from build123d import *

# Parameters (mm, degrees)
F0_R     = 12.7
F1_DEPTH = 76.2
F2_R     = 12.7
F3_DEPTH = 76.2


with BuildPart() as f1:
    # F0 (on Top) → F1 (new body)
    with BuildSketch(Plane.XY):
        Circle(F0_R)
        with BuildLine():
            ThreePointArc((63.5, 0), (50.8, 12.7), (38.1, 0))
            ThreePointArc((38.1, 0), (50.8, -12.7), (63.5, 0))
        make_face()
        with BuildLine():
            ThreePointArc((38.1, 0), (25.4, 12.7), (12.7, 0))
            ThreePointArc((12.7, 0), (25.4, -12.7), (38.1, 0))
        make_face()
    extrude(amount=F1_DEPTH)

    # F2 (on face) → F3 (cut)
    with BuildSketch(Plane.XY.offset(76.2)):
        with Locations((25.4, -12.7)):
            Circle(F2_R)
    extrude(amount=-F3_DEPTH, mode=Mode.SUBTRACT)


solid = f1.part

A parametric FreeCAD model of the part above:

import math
import FreeCAD as App
import Part
import Sketcher

V = App.Vector
Q = App.Units.Quantity

doc = App.newDocument("Part")
params = doc.addObject("Spreadsheet::Sheet", "Params")
for row, (alias, value) in enumerate([
    ("sketch1_diameter", "1 in"),
    ("pad1_length", "3 in"),
    ("sketch2_diameter", "1 in"),
    ("pocket1_length", "3 in"),
], start=1):
    params.set(f"A{row}", alias)
    params.set(f"B{row}", "=" + value)
    params.setAlias(f"B{row}", alias)

body = doc.addObject("PartDesign::Body", "Body")
body.AllowCompound = True

# Sketch on XY plane
sketch1 = body.newObject("Sketcher::SketchObject", "Sketch")
sketch1.AttachmentSupport = (doc.getObject("XY_Plane"), [""])
sketch1.MapMode = "FlatFace"
sketch1.addGeometry(Part.Circle(V(0, 0, 0), V(0, 0, 1), 13), False)
sketch1.addGeometry(Part.Circle(V(51, 0, 0), V(0, 0, 1), 13), False)
sketch1.addGeometry(Part.ArcOfCircle(Part.Circle(V(25, 0, 0), V(0, 0, 1), 13), math.radians(180), math.radians(360)), False)
sketch1.addGeometry(Part.ArcOfCircle(Part.Circle(V(25, 0, 0), V(0, 0, 1), 13), math.radians(0), math.radians(180)), False)
sketch1.addConstraint(Sketcher.Constraint("Tangent", 2, 1, 3, 2))
sketch1.addConstraint(Sketcher.Constraint("Coincident", 3, 1, 2, 2))
sketch1.addConstraint(Sketcher.Constraint("Coincident", 0, 3, -1, 1))
sketch1.addConstraint(Sketcher.Constraint("Equal", 0, 1))
sketch1.addConstraint(Sketcher.Constraint("Equal", 1, 2))
sketch1.addConstraint(Sketcher.Constraint("PointOnObject", 1, 3, -1))
sketch1.addConstraint(Sketcher.Constraint("PointOnObject", 2, 3, -1))
sketch1.addConstraint(Sketcher.Constraint("PointOnObject", 2, 1, -1))
sketch1.addConstraint(Sketcher.Constraint("PointOnObject", 3, 1, -1))
sketch1.addConstraint(Sketcher.Constraint("Diameter", 0, Q("1 in")))
sketch1.addConstraint(Sketcher.Constraint("DistanceX", -1, 1, 1, 3, Q("2 in")))
sketch1.addConstraint(Sketcher.Constraint("DistanceX", -1, 1, 2, 3, Q("1 in")))
sketch1.setExpression("Constraints[9]", "Params.sketch1_diameter")
pad1 = body.newObject("PartDesign::Pad", "Pad")
pad1.Profile = sketch1
pad1.setExpression("Length", "Params.pad1_length")

# Sketch on XY plane
sketch2 = body.newObject("Sketcher::SketchObject", "Sketch001")
sketch2.AttachmentSupport = (doc.getObject("XY_Plane"), [""])
sketch2.MapMode = "FlatFace"
sketch2.AttachmentOffset = App.Placement(V(0, 0, 3 * 25.4), App.Rotation())
sketch2.addGeometry(Part.Circle(V(25, -13, 0), V(0, 0, 1), 13), False)
sketch2.addConstraint(Sketcher.Constraint("Diameter", 0, Q("1 in")))
sketch2.addConstraint(Sketcher.Constraint("DistanceX", -1, 1, 0, 3, Q("1 in")))
sketch2.addConstraint(Sketcher.Constraint("DistanceY", 0, 3, -1, 1, Q("0.5 in")))
sketch2.setExpression("Constraints[0]", "Params.sketch2_diameter")
pocket1 = body.newObject("PartDesign::Pocket", "Pocket")
pocket1.Profile = sketch2
pocket1.setExpression("Length", "Params.pocket1_length")

doc.recompute()
